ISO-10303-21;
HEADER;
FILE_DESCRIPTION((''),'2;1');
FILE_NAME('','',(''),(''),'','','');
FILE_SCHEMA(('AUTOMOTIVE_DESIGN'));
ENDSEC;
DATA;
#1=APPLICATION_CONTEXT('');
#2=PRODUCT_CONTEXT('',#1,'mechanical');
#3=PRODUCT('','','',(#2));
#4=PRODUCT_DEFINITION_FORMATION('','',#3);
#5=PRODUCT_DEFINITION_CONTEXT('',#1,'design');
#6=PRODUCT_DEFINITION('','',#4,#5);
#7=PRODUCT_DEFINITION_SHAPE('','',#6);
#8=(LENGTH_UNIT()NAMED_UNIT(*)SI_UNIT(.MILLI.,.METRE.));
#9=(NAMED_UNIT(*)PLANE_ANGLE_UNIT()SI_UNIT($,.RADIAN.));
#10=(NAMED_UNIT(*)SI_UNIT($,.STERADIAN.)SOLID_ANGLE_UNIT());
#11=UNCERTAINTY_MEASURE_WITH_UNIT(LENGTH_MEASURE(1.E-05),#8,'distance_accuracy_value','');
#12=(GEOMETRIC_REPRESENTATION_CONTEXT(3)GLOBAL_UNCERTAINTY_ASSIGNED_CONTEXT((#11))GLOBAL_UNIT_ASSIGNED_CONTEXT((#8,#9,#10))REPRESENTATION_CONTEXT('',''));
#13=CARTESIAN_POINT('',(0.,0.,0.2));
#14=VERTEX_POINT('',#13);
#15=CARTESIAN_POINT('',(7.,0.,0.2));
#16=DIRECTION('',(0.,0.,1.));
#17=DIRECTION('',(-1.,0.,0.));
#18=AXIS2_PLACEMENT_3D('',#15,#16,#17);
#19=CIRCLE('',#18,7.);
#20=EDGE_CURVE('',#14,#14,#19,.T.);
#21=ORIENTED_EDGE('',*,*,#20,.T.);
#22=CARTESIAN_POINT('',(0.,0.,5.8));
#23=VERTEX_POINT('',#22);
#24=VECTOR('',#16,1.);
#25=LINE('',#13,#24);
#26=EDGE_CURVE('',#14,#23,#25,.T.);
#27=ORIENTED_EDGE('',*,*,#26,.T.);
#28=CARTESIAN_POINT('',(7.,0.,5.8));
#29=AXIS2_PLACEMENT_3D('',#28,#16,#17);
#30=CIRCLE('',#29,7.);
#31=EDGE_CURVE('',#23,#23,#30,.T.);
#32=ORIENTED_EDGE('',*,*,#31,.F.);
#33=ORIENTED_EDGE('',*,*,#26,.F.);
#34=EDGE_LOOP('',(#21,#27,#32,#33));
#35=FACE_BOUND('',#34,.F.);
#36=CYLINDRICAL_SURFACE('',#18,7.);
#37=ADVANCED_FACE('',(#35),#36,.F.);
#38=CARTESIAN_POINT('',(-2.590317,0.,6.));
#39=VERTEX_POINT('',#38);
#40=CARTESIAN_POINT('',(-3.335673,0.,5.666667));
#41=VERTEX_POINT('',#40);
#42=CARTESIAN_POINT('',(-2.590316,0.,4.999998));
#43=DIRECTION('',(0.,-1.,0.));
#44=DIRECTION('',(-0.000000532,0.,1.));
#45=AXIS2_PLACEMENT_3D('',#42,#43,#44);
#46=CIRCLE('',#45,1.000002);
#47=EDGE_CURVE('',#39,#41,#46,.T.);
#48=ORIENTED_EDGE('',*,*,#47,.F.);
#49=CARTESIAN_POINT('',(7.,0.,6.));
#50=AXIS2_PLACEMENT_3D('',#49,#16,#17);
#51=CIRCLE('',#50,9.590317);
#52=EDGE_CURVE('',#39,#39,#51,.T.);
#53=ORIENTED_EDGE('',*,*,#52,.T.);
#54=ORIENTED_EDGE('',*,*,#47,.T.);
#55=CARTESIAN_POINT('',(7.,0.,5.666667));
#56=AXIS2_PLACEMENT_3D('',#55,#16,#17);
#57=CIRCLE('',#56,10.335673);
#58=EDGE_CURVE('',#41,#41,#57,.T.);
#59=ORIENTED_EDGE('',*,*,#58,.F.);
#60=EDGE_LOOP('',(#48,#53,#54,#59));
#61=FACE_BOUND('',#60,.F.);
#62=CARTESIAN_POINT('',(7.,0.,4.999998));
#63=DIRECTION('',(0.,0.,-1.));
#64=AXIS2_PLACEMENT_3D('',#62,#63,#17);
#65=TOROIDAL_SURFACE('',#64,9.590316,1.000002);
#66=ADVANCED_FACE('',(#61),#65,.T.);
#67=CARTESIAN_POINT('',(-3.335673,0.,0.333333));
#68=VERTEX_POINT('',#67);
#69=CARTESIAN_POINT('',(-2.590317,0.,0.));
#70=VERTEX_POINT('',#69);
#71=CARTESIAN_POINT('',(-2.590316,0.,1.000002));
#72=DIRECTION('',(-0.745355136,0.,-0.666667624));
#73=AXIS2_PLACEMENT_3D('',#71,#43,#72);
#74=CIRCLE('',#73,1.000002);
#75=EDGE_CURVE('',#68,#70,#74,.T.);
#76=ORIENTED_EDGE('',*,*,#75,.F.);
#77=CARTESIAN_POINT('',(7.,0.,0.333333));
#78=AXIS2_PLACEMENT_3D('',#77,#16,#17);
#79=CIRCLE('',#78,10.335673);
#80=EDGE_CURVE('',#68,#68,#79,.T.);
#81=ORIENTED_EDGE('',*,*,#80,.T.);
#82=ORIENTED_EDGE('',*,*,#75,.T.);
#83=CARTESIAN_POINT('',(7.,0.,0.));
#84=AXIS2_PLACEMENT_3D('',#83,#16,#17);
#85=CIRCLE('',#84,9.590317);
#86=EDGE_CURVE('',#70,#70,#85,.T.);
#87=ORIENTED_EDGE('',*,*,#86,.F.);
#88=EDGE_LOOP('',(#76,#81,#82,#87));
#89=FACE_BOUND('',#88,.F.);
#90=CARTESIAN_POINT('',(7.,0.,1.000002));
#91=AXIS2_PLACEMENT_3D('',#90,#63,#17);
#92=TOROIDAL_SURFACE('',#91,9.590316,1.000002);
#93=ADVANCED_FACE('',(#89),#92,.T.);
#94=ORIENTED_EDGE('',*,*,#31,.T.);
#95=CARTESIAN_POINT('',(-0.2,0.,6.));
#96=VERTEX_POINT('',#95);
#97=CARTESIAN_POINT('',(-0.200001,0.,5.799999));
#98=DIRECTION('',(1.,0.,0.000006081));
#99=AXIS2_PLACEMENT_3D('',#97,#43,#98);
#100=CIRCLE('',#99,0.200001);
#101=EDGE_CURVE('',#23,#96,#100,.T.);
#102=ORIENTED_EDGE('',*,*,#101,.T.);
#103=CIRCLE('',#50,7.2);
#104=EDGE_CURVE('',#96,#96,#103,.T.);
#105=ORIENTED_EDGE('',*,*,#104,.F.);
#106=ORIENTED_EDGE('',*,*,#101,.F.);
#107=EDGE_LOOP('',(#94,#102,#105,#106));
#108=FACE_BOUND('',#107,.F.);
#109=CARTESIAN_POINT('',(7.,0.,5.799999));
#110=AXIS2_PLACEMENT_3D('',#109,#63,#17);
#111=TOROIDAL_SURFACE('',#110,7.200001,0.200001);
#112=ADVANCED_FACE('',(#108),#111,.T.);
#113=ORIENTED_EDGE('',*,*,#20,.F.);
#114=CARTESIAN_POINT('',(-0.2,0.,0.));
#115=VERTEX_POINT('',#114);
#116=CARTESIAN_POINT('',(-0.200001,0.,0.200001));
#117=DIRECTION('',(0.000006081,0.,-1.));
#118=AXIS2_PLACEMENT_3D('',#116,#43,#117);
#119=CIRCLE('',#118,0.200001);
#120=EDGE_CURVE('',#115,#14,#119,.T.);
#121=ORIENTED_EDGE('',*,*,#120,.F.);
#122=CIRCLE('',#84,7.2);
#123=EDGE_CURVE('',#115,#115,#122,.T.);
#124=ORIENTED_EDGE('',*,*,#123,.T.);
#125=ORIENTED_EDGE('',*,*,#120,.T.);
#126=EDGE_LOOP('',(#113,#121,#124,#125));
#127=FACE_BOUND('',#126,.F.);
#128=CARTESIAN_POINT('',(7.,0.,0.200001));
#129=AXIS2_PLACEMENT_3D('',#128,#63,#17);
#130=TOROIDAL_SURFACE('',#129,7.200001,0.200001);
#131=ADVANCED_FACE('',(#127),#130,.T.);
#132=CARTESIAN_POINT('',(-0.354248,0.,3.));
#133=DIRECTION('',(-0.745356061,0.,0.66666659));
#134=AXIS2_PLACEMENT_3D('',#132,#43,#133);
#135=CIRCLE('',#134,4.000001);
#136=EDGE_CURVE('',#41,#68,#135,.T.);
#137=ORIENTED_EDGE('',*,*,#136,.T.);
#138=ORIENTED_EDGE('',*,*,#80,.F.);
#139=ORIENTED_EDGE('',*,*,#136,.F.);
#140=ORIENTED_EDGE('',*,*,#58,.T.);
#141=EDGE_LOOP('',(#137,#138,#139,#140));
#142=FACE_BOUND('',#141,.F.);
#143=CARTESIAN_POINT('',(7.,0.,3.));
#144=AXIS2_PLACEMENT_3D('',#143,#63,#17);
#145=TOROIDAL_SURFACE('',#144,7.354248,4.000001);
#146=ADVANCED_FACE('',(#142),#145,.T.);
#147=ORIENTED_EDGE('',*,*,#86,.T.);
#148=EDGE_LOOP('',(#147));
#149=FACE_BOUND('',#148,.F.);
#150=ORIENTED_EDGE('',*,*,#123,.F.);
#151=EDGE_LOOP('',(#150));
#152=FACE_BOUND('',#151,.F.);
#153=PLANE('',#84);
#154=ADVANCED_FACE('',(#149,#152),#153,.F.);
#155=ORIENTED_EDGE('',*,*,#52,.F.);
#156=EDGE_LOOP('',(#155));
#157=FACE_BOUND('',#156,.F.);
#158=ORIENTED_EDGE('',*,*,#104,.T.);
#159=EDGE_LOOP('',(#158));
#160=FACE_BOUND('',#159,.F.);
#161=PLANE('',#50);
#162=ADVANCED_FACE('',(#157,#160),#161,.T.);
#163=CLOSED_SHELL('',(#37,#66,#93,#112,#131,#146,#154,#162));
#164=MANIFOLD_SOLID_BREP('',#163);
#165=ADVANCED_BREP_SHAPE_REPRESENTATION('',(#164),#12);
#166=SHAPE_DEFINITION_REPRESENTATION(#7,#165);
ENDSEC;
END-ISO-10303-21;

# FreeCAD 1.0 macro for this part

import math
import FreeCAD as App
import Part
import Sketcher
from FreeCAD import Vector
Q = App.Units.Quantity

doc = App.newDocument("Part")
params = doc.addObject("Spreadsheet::Sheet", "Params")
for row, (alias, value) in enumerate([
    ("sketch1_radius", "1.000002 mm"),
    ("sketch1_radius2", "4.000001 mm"),
    ("sketch1_radius3", "0.200001 mm"),
    ("sketch1_height", "6 mm"),
    ("sketch1_height2", "5.6 mm"),
    ("revolution_angle", "360 deg"),
], start=1):
    params.set(f"A{row}", alias)
    params.set(f"B{row}", "=" + value)
    params.setAlias(f"B{row}", alias)

body = doc.addObject("PartDesign::Body", "Body")

sketch1 = body.newObject("Sketcher::SketchObject", "Sketch")
sketch1.AttachmentSupport = (doc.getObject("XZ_Plane"), [""])
sketch1.MapMode = "FlatFace"
sketch1.addGeometry(Part.ArcOfCircle(Part.Circle(Vector(-0.2, 0.2, 0), Vector(0, 0, 1), 0.2), math.radians(-90), math.radians(0)), False)
sketch1.addGeometry(Part.LineSegment(Vector(0, 0.2, 0), Vector(0, 5.8, 0)), False)
sketch1.addGeometry(Part.ArcOfCircle(Part.Circle(Vector(-0.2, 5.8, 0), Vector(0, 0, 1), 0.2), math.radians(0), math.radians(90)), False)
sketch1.addGeometry(Part.LineSegment(Vector(-0.2, 6, 0), Vector(-2.59, 6, 0)), False)
sketch1.addGeometry(Part.ArcOfCircle(Part.Circle(Vector(-2.59, 5, 0), Vector(0, 0, 1), 1), math.radians(90), math.radians(138)), False)
sketch1.addGeometry(Part.ArcOfCircle(Part.Circle(Vector(-0.35, 3, 0), Vector(0, 0, 1), 4), math.radians(138), math.radians(222)), False)
sketch1.addGeometry(Part.ArcOfCircle(Part.Circle(Vector(-2.59, 1, 0), Vector(0, 0, 1), 1), math.radians(-138), math.radians(-90)), False)
sketch1.addGeometry(Part.LineSegment(Vector(-2.59, 0, 0), Vector(-0.2, 0, 0)), False)
sketch1.addGeometry(Part.LineSegment(Vector(7, 0, 0), Vector(7, 6, 0)), True)
sketch1.addConstraint(Sketcher.Constraint("Coincident", 0, 2, 1, 1))
sketch1.addConstraint(Sketcher.Constraint("Coincident", 1, 2, 2, 1))
sketch1.addConstraint(Sketcher.Constraint("Coincident", 2, 2, 3, 1))
sketch1.addConstraint(Sketcher.Constraint("Tangent", 3, 2, 4, 1))
sketch1.addConstraint(Sketcher.Constraint("Tangent", 4, 2, 5, 1))
sketch1.addConstraint(Sketcher.Constraint("Tangent", 5, 2, 6, 1))
sketch1.addConstraint(Sketcher.Constraint("Tangent", 6, 2, 7, 1))
sketch1.addConstraint(Sketcher.Constraint("Coincident", 7, 2, 0, 1))
sketch1.addConstraint(Sketcher.Constraint("Vertical", 1))
sketch1.addConstraint(Sketcher.Constraint("Horizontal", 3))
sketch1.addConstraint(Sketcher.Constraint("Horizontal", 7))
sketch1.addConstraint(Sketcher.Constraint("Vertical", 8))
sketch1.addConstraint(Sketcher.Constraint("Equal", 0, 2))
sketch1.addConstraint(Sketcher.Constraint("Equal", 4, 6))
sketch1.addConstraint(Sketcher.Constraint("PointOnObject", 0, 2, -2))
sketch1.addConstraint(Sketcher.Constraint("PointOnObject", 6, 2, -1))
sketch1.addConstraint(Sketcher.Constraint("PointOnObject", 8, 1, -1))
sketch1.addConstraint(Sketcher.Constraint("Horizontal", 2, 3, 1, 2))
sketch1.addConstraint(Sketcher.Constraint("Horizontal", 3, 2, 8, 2))
sketch1.addConstraint(Sketcher.Constraint("Vertical", 4, 3, 6, 3))
sketch1.addConstraint(Sketcher.Constraint("Vertical", 0, 3, 2, 2))
sketch1.addConstraint(Sketcher.Constraint("Vertical", 2, 2, 7, 2))
sketch1.addConstraint(Sketcher.Constraint("Radius", 4, Q("1.000002 mm")))
sketch1.addConstraint(Sketcher.Constraint("Radius", 5, Q("4.000001 mm")))
sketch1.addConstraint(Sketcher.Constraint("Radius", 0, Q("0.200001 mm")))
sketch1.addConstraint(Sketcher.Constraint("DistanceY", 8, 1, 8, 2, Q("6 mm")))
sketch1.addConstraint(Sketcher.Constraint("DistanceY", 1, 1, 1, 2, Q("5.6 mm")))
sketch1.addConstraint(Sketcher.Constraint("DistanceX", -1, 1, 8, 1, Q("7 mm")))
sketch1.addConstraint(Sketcher.Constraint("DistanceX", 3, 2, 3, 1, Q("2.390317 mm")))
sketch1.setExpression("Constraints[22]", "Params.sketch1_radius")
sketch1.setExpression("Constraints[23]", "Params.sketch1_radius2")
sketch1.setExpression("Constraints[24]", "Params.sketch1_radius3")
sketch1.setExpression("Constraints[25]", "Params.sketch1_height")
sketch1.setExpression("Constraints[26]", "Params.sketch1_height2")
revolution = body.newObject("PartDesign::Revolution", "Revolution")
revolution.Profile = sketch1
revolution.ReferenceAxis = (sketch1, ["Axis0"])
revolution.setExpression("Angle", "Params.revolution_angle")

doc.recompute()
